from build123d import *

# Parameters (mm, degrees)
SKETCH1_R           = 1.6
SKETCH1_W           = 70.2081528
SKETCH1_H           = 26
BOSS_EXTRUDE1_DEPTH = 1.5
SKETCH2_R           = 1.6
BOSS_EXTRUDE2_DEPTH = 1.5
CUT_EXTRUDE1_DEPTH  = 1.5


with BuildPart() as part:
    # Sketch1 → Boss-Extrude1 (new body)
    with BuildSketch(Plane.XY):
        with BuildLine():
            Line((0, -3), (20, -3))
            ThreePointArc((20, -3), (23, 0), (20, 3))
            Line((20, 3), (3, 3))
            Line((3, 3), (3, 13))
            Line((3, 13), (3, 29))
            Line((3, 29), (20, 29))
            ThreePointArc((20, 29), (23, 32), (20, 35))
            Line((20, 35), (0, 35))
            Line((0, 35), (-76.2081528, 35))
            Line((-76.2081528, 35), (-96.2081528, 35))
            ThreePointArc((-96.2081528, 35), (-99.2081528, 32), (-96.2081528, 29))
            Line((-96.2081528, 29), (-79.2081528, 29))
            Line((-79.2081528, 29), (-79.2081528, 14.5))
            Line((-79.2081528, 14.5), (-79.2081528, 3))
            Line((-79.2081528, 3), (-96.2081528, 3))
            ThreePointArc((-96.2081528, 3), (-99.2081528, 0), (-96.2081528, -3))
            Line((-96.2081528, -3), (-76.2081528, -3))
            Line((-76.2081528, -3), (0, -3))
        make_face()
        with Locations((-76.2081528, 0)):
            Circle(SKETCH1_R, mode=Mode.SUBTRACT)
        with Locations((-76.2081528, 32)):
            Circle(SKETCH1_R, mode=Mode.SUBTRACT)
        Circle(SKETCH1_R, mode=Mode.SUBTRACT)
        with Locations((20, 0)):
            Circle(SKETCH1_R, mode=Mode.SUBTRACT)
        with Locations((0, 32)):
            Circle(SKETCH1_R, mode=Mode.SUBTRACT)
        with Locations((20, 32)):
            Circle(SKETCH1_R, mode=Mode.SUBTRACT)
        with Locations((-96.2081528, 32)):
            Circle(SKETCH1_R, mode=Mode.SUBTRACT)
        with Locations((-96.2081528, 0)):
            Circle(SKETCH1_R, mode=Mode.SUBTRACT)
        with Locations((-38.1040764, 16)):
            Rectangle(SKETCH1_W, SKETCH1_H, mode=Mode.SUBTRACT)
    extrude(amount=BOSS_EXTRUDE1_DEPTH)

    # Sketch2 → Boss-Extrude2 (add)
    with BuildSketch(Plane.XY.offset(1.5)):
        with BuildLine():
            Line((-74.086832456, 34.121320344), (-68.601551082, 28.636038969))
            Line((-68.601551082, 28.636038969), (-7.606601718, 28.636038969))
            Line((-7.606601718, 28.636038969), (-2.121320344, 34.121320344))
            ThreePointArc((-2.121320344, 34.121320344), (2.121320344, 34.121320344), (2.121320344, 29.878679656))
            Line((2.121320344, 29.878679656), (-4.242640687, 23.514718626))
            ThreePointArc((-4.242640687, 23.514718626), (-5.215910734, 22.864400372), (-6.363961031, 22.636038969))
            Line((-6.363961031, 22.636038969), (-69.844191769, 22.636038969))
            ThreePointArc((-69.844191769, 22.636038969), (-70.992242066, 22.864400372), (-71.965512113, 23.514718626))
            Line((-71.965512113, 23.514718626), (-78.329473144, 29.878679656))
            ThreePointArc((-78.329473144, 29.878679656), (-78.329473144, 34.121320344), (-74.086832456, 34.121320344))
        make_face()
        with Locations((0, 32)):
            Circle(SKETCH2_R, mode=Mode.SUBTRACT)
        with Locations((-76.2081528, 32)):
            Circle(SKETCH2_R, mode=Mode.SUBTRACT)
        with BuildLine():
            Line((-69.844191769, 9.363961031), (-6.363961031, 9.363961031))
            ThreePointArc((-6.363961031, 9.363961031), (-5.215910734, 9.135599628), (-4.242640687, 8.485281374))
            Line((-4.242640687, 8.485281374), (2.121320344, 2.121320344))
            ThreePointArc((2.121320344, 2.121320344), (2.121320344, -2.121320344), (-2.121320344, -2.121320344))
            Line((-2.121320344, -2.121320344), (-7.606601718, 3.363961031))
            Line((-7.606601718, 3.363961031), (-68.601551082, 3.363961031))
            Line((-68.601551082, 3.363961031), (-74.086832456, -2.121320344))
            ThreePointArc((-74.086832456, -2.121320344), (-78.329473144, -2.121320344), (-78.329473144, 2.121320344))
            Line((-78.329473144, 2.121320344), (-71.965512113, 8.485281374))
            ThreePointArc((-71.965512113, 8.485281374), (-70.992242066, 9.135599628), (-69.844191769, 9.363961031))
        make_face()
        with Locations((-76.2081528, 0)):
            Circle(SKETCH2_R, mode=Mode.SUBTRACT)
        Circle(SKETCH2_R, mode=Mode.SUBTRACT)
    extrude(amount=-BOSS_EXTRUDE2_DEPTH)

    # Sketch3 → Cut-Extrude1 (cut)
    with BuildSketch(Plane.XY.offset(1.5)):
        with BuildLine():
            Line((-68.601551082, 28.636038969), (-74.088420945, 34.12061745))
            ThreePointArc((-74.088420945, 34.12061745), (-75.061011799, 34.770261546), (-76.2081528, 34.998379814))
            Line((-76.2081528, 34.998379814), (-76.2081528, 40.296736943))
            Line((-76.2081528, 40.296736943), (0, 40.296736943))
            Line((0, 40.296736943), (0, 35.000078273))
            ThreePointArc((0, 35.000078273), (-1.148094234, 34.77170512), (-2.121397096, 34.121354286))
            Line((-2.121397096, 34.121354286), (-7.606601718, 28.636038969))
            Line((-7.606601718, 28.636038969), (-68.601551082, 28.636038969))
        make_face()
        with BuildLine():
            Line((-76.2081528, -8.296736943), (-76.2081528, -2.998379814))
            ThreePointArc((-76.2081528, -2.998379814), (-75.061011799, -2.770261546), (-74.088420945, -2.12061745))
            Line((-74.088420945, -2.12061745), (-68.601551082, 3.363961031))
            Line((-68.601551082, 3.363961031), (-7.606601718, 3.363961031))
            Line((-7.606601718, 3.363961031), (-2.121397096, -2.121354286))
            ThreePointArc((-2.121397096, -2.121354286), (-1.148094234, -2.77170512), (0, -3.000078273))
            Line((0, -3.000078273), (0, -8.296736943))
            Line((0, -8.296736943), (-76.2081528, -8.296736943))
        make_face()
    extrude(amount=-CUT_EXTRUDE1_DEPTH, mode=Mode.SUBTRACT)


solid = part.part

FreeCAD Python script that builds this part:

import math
import FreeCAD as App
import Part
import Sketcher

V = App.Vector
Q = App.Units.Quantity


def add_polygon(sketch, points):
    """Adds a closed chain of lines whose ends are joined by coincident constraints."""
    first, n = sketch.GeometryCount, len(points)
    for a, b in zip(points, points[1:] + points[:1]):
        sketch.addGeometry(Part.LineSegment(App.Vector(*a, 0), App.Vector(*b, 0)), False)
    for i in range(n):
        sketch.addConstraint(Sketcher.Constraint("Coincident", first + i, 2, first + (i + 1) % n, 1))

doc = App.newDocument("Part")
body = doc.addObject("PartDesign::Body", "Body")

sketch1 = doc.addObject("Sketcher::SketchObject", "Sketch")
body.addObject(sketch1)
sketch1.AttachmentSupport = (doc.XY_Plane, [""])
sketch1.MapMode = "FlatFace"
sketch1.addGeometry(Part.ArcOfCircle(Part.Circle(V(20, 0, 0), V(0, 0, 1), 3), math.radians(-90), math.radians(90)), False)
sketch1.addGeometry(Part.LineSegment(V(20, 3, 0), V(3, 3, 0)), False)
sketch1.addGeometry(Part.LineSegment(V(3, 3, 0), V(3, 29, 0)), False)
sketch1.addGeometry(Part.LineSegment(V(3, 29, 0), V(20, 29, 0)), False)
sketch1.addGeometry(Part.ArcOfCircle(Part.Circle(V(20, 32, 0), V(0, 0, 1), 3), math.radians(-90), math.radians(90)), False)
sketch1.addGeometry(Part.LineSegment(V(20, 35, 0), V(-96.2, 35, 0)), False)
sketch1.addGeometry(Part.ArcOfCircle(Part.Circle(V(-96.2, 32, 0), V(0, 0, 1), 3), math.radians(90), math.radians(270)), False)
sketch1.addGeometry(Part.LineSegment(V(-96.2, 29, 0), V(-79.2, 29, 0)), False)
sketch1.addGeometry(Part.LineSegment(V(-79.2, 29, 0), V(-79.2, 3, 0)), False)
sketch1.addGeometry(Part.LineSegment(V(-79.2, 3, 0), V(-96.2, 3, 0)), False)
sketch1.addGeometry(Part.ArcOfCircle(Part.Circle(V(-96.2, 0, 0), V(0, 0, 1), 3), math.radians(90), math.radians(270)), False)
sketch1.addGeometry(Part.LineSegment(V(-96.2, -3, 0), V(20, -3, 0)), False)
sketch1.addGeometry(Part.Circle(V(-96.2, 0, 0), V(0, 0, 1), 1.6), False)
sketch1.addGeometry(Part.Circle(V(-76.2, 0, 0), V(0, 0, 1), 1.6), False)
sketch1.addGeometry(Part.Circle(V(0, 0, 0), V(0, 0, 1), 1.6), False)
sketch1.addGeometry(Part.Circle(V(20, 0, 0), V(0, 0, 1), 1.6), False)
sketch1.addGeometry(Part.Circle(V(-96.2, 32, 0), V(0, 0, 1), 1.6), False)
sketch1.addGeometry(Part.Circle(V(-76.2, 32, 0), V(0, 0, 1), 1.6), False)
add_polygon(sketch1, [(-3, 3), (-73.2, 3), (-73.2, 29), (-3, 29)])
sketch1.addGeometry(Part.Circle(V(0, 32, 0), V(0, 0, 1), 1.6), False)
sketch1.addGeometry(Part.Circle(V(20, 32, 0), V(0, 0, 1), 1.6), False)
sketch1.addConstraint([
    Sketcher.Constraint("Tangent", 0, 2, 1, 1),
    Sketcher.Constraint("Coincident", 1, 2, 2, 1),
    Sketcher.Constraint("Coincident", 2, 2, 3, 1),
    Sketcher.Constraint("Tangent", 3, 2, 4, 1),
    Sketcher.Constraint("Tangent", 4, 2, 5, 1),
    Sketcher.Constraint("Tangent", 5, 2, 6, 1),
    Sketcher.Constraint("Tangent", 6, 2, 7, 1),
    Sketcher.Constraint("Coincident", 7, 2, 8, 1),
    Sketcher.Constraint("Coincident", 8, 2, 9, 1),
    Sketcher.Constraint("Tangent", 9, 2, 10, 1),
    Sketcher.Constraint("Tangent", 10, 2, 11, 1),
    Sketcher.Constraint("Tangent", 11, 2, 0, 1),
    Sketcher.Constraint("Horizontal", 1),
    Sketcher.Constraint("Vertical", 2),
    Sketcher.Constraint("Horizontal", 3),
    Sketcher.Constraint("Horizontal", 5),
    Sketcher.Constraint("Horizontal", 7),
    Sketcher.Constraint("Vertical", 8),
    Sketcher.Constraint("Horizontal", 9),
    Sketcher.Constraint("Horizontal", 11),
    Sketcher.Constraint("Horizontal", 18),
    Sketcher.Constraint("Vertical", 19),
    Sketcher.Constraint("Horizontal", 20),
    Sketcher.Constraint("Vertical", 21),
    Sketcher.Constraint("Coincident", 14, 3, -1, 1),
    Sketcher.Constraint("Coincident", 12, 3, 10, 3),
    Sketcher.Constraint("Coincident", 15, 3, 0, 3),
    Sketcher.Constraint("Coincident", 16, 3, 6, 3),
    Sketcher.Constraint("Coincident", 23, 3, 4, 3),
    Sketcher.Constraint("Equal", 0, 4),
    Sketcher.Constraint("Equal", 4, 6),
    Sketcher.Constraint("Equal", 6, 10),
    Sketcher.Constraint("Equal", 12, 13),
    Sketcher.Constraint("Equal", 13, 14),
    Sketcher.Constraint("Equal", 14, 15),
    Sketcher.Constraint("Equal", 15, 16),
    Sketcher.Constraint("Equal", 16, 17),
    Sketcher.Constraint("Equal", 17, 22),
    Sketcher.Constraint("Equal", 22, 23),
    Sketcher.Constraint("Symmetric", 2, 2, 20, 2, -2),
    Sketcher.Constraint("PointOnObject", 0, 3, -1),
    Sketcher.Constraint("PointOnObject", 13, 3, -1),
    Sketcher.Constraint("PointOnObject", 22, 3, -2),
    Sketcher.Constraint("Horizontal", 16, 3, 17, 3),
    Sketcher.Constraint("Horizontal", 17, 3, 22, 3),
    Sketcher.Constraint("Horizontal", 9, 2, 18, 2),
    Sketcher.Constraint("Vertical", 0, 3, 4, 3),
    Sketcher.Constraint("Vertical", 6, 3, 10, 3),
    Sketcher.Constraint("Vertical", 13, 3, 17, 3),
    Sketcher.Constraint("Equal", 3, 7),
    Sketcher.Constraint("Radius", 0, Q("3 mm")),
    Sketcher.Constraint("Diameter", 12, Q("3.2 mm")),
    Sketcher.Constraint("DistanceX", 1, 2, 1, 1, Q("17 mm")),
    Sketcher.Constraint("DistanceY", 2, 1, 2, 2, Q("26 mm")),
    Sketcher.Constraint("DistanceX", -1, 1, 0, 3, Q("20 mm")),
    Sketcher.Constraint("DistanceX", 10, 3, 13, 3, Q("20 mm")),
    Sketcher.Constraint("DistanceX", 13, 3, 18, 2, Q("3 mm")),
    Sketcher.Constraint("DistanceX", 5, 2, 5, 1, Q("116.208153 mm")),
])
pad1 = doc.addObject("PartDesign::Pad", "Pad")
body.addObject(pad1)
pad1.Profile = sketch1
pad1.Length = 1.5

sketch2 = doc.addObject("Sketcher::SketchObject", "Sketch001")
body.addObject(sketch2)
sketch2.AttachmentSupport = (doc.XY_Plane, [""])
sketch2.MapMode = "FlatFace"
sketch2.AttachmentOffset = App.Placement(V(0, 0, 1.5), App.Rotation())
sketch2.addGeometry([
    Part.LineSegment(V(-68.6, 28.6, 0), V(-74.1, 34.1, 0)),
    Part.ArcOfCircle(Part.Circle(V(-76.2, 32, 0), V(0, 0, 1), 3), math.radians(45), math.radians(225)),
    Part.LineSegment(V(-78.3, 29.9, 0), V(-72, 23.5, 0)),
    Part.ArcOfCircle(Part.Circle(V(-69.8, 25.6, 0), V(0, 0, 1), 3), math.radians(-135), math.radians(-90)),
    Part.LineSegment(V(-69.8, 22.6, 0), V(-6.4, 22.6, 0)),
    Part.ArcOfCircle(Part.Circle(V(-6.4, 25.6, 0), V(0, 0, 1), 3), math.radians(-90), math.radians(-45)),
    Part.LineSegment(V(-4.2, 23.5, 0), V(2.1, 29.9, 0)),
    Part.ArcOfCircle(Part.Circle(V(0, 32, 0), V(0, 0, 1), 3), math.radians(-45), math.radians(135)),
    Part.LineSegment(V(-2.1, 34.1, 0), V(-7.6, 28.6, 0)),
    Part.LineSegment(V(-7.6, 28.6, 0), V(-68.6, 28.6, 0)),
    Part.Circle(V(0, 32, 0), V(0, 0, 1), 1.6),
    Part.Circle(V(-76.2, 32, 0), V(0, 0, 1), 1.6),
    Part.LineSegment(V(-6.4, 9.4, 0), V(-69.8, 9.4, 0)),
    Part.ArcOfCircle(Part.Circle(V(-69.8, 6.4, 0), V(0, 0, 1), 3), math.radians(90), math.radians(135)),
    Part.LineSegment(V(-72, 8.5, 0), V(-78.3, 2.1, 0)),
    Part.ArcOfCircle(Part.Circle(V(-76.2, 0, 0), V(0, 0, 1), 3), math.radians(135), math.radians(315)),
    Part.LineSegment(V(-74.1, -2.1, 0), V(-68.6, 3.4, 0)),
    Part.LineSegment(V(-68.6, 3.4, 0), V(-7.6, 3.4, 0)),
    Part.LineSegment(V(-7.6, 3.4, 0), V(-2.1, -2.1, 0)),
    Part.ArcOfCircle(Part.Circle(V(0, 0, 0), V(0, 0, 1), 3), math.radians(-135), math.radians(45)),
    Part.LineSegment(V(2.1, 2.1, 0), V(-4.2, 8.5, 0)),
    Part.ArcOfCircle(Part.Circle(V(-6.4, 6.4, 0), V(0, 0, 1), 3), math.radians(45), math.radians(90)),
    Part.Circle(V(0, 0, 0), V(0, 0, 1), 1.6),
    Part.Circle(V(-76.2, 0, 0), V(0, 0, 1), 1.6),
], False)
sketch2.addConstraint([
    Sketcher.Constraint("Tangent", 0, 2, 1, 1),
    Sketcher.Constraint("Tangent", 1, 2, 2, 1),
    Sketcher.Constraint("Tangent", 2, 2, 3, 1),
    Sketcher.Constraint("Tangent", 3, 2, 4, 1),
    Sketcher.Constraint("Tangent", 4, 2, 5, 1),
    Sketcher.Constraint("Tangent", 5, 2, 6, 1),
    Sketcher.Constraint("Tangent", 6, 2, 7, 1),
    Sketcher.Constraint("Tangent", 7, 2, 8, 1),
    Sketcher.Constraint("Coincident", 8, 2, 9, 1),
    Sketcher.Constraint("Coincident", 9, 2, 0, 1),
    Sketcher.Constraint("Tangent", 12, 2, 13, 1),
    Sketcher.Constraint("Tangent", 13, 2, 14, 1),
    Sketcher.Constraint("Tangent", 14, 2, 15, 1),
    Sketcher.Constraint("Tangent", 15, 2, 16, 1),
    Sketcher.Constraint("Coincident", 16, 2, 17, 1),
    Sketcher.Constraint("Coincident", 17, 2, 18, 1),
    Sketcher.Constraint("Tangent", 18, 2, 19, 1),
    Sketcher.Constraint("Tangent", 19, 2, 20, 1),
    Sketcher.Constraint("Tangent", 20, 2, 21, 1),
    Sketcher.Constraint("Tangent", 21, 2, 12, 1),
    Sketcher.Constraint("Horizontal", 4),
    Sketcher.Constraint("Horizontal", 9),
    Sketcher.Constraint("Horizontal", 12),
    Sketcher.Constraint("Horizontal", 17),
    Sketcher.Constraint("Coincident", 19, 3, -1, 1),
    Sketcher.Constraint("Coincident", 22, 3, -1, 1),
    Sketcher.Constraint("Coincident", 10, 3, 7, 3),
    Sketcher.Constraint("Coincident", 11, 3, 1, 3),
    Sketcher.Constraint("Coincident", 23, 3, 15, 3),
    Sketcher.Constraint("Equal", 1, 3),
    Sketcher.Constraint("Equal", 3, 5),
    Sketcher.Constraint("Equal", 5, 7),
    Sketcher.Constraint("Equal", 10, 11),
    Sketcher.Constraint("Equal", 7, 13),
    Sketcher.Constraint("Equal", 13, 15),
    Sketcher.Constraint("Equal", 15, 19),
    Sketcher.Constraint("Equal", 19, 21),
    Sketcher.Constraint("Equal", 11, 22),
    Sketcher.Constraint("Equal", 22, 23),
    Sketcher.Constraint("PointOnObject", 7, 3, -2),
    Sketcher.Constraint("PointOnObject", 15, 3, -1),
    Sketcher.Constraint("Parallel", 0, 2),
    Sketcher.Constraint("Perpendicular", 2, 6),
    Sketcher.Constraint("Parallel", 6, 8),
    Sketcher.Constraint("Parallel", 8, 14),
    Sketcher.Constraint("Parallel", 14, 16),
    Sketcher.Constraint("Perpendicular", 16, 18),
    Sketcher.Constraint("Parallel", 18, 20),
    Sketcher.Constraint("Horizontal", 1, 3, 7, 3),
    Sketcher.Constraint("Horizontal", 2, 2, 5, 2),
    Sketcher.Constraint("Vertical", 3, 3, 13, 3),
    Sketcher.Constraint("Vertical", 11, 3, 15, 3),
    Sketcher.Constraint("Vertical", 9, 2, 16, 2),
    Sketcher.Constraint("Radius", 1, Q("3 mm")),
    Sketcher.Constraint("Diameter", 10, Q("3.2 mm")),
    Sketcher.Constraint("Distance", 2, Q("9 mm")),
    Sketcher.Constraint("DistanceY", -1, 1, 1, 3, Q("32 mm")),
    Sketcher.Constraint("DistanceY", 5, 3, 8, 2, Q("3 mm")),
    Sketcher.Constraint("DistanceX", 4, 1, 4, 2, Q("63.480231 mm")),
])
pad2 = doc.addObject("PartDesign::Pad", "Pad001")
body.addObject(pad2)
pad2.Profile = sketch2
pad2.Length = 1.5
pad2.Reversed = True

sketch3 = doc.addObject("Sketcher::SketchObject", "Sketch002")
body.addObject(sketch3)
sketch3.AttachmentSupport = (doc.XY_Plane, [""])
sketch3.MapMode = "FlatFace"
sketch3.AttachmentOffset = App.Placement(V(0, 0, 1.5), App.Rotation())
sketch3.addGeometry([
    Part.LineSegment(V(-74.1, 34.1, 0), V(-68.6, 28.6, 0)),
    Part.LineSegment(V(-68.6, 28.6, 0), V(-7.6, 28.6, 0)),
    Part.LineSegment(V(-7.6, 28.6, 0), V(-2.1, 34.1, 0)),
    Part.ArcOfCircle(Part.Circle(V(0, 32, 0), V(0, 0, 1), 3), math.radians(90), math.radians(135)),
    Part.LineSegment(V(0, 35, 0), V(0, 40.3, 0)),
    Part.LineSegment(V(0, 40.3, 0), V(-76.2, 40.3, 0)),
    Part.LineSegment(V(-76.2, 40.3, 0), V(-76.2, 35, 0)),
    Part.ArcOfCircle(Part.Circle(V(-76.2, 32, 0), V(0, 0, 1), 3), math.radians(45), math.radians(90)),
    Part.LineSegment(V(-76.2, -3, 0), V(-76.2, -8.3, 0)),
    Part.LineSegment(V(-76.2, -8.3, 0), V(0, -8.3, 0)),
    Part.LineSegment(V(0, -8.3, 0), V(0, -3, 0)),
    Part.ArcOfCircle(Part.Circle(V(0, 0, 0), V(0, 0, 1), 3), math.radians(-135), math.radians(-90)),
    Part.LineSegment(V(-2.1, -2.1, 0), V(-7.6, 3.4, 0)),
    Part.LineSegment(V(-7.6, 3.4, 0), V(-68.6, 3.4, 0)),
    Part.LineSegment(V(-68.6, 3.4, 0), V(-74.1, -2.1, 0)),
    Part.ArcOfCircle(Part.Circle(V(-76.2, 0, 0), V(0, 0, 1), 3), math.radians(-90), math.radians(-45)),
], False)
sketch3.addConstraint([
    Sketcher.Constraint("Coincident", 0, 2, 1, 1),
    Sketcher.Constraint("Coincident", 1, 2, 2, 1),
    Sketcher.Constraint("Tangent", 2, 2, 3, 2),
    Sketcher.Constraint("Coincident", 3, 1, 4, 1),
    Sketcher.Constraint("Coincident", 4, 2, 5, 1),
    Sketcher.Constraint("Coincident", 5, 2, 6, 1),
    Sketcher.Constraint("Coincident", 6, 2, 7, 2),
    Sketcher.Constraint("Tangent", 7, 1, 0, 1),
    Sketcher.Constraint("Coincident", 8, 2, 9, 1),
    Sketcher.Constraint("Coincident", 9, 2, 10, 1),
    Sketcher.Constraint("Coincident", 10, 2, 11, 2),
    Sketcher.Constraint("Tangent", 11, 1, 12, 1),
    Sketcher.Constraint("Coincident", 12, 2, 13, 1),
    Sketcher.Constraint("Coincident", 13, 2, 14, 1),
    Sketcher.Constraint("Tangent", 14, 2, 15, 2),
    Sketcher.Constraint("Coincident", 15, 1, 8, 1),
    Sketcher.Constraint("Horizontal", 1),
    Sketcher.Constraint("Vertical", 4),
    Sketcher.Constraint("Horizontal", 5),
    Sketcher.Constraint("Vertical", 6),
    Sketcher.Constraint("Vertical", 8),
    Sketcher.Constraint("Horizontal", 9),
    Sketcher.Constraint("Vertical", 10),
    Sketcher.Constraint("Horizontal", 13),
    Sketcher.Constraint("Coincident", 11, 3, -1, 1),
    Sketcher.Constraint("Equal", 3, 11),
    Sketcher.Constraint("Equal", 7, 15),
    Sketcher.Constraint("PointOnObject", 3, 3, -2),
    Sketcher.Constraint("PointOnObject", 15, 3, -1),
    Sketcher.Constraint("PointOnObject", 3, 1, -2),
    Sketcher.Constraint("PointOnObject", 9, 2, -2),
    Sketcher.Constraint("Horizontal", 3, 3, 7, 3),
    Sketcher.Constraint("Vertical", 7, 3, 15, 3),
    Sketcher.Constraint("Vertical", 15, 3, 5, 2),
    Sketcher.Constraint("Vertical", 6, 2, 8, 2),
    Sketcher.Constraint("Vertical", 2, 2, 11, 1),
    Sketcher.Constraint("Vertical", 1, 2, 12, 2),
    Sketcher.Constraint("Vertical", 0, 2, 13, 2),
    Sketcher.Constraint("Equal", 6, 8),
    Sketcher.Constraint("DistanceY", -1, 1, 3, 3, Q("32 mm")),
    Sketcher.Constraint("Radius", 3, Q("3.000078 mm")),
    Sketcher.Constraint("Radius", 7, Q("2.99838 mm")),
    Sketcher.Constraint("DistanceX", 1, 1, 1, 2, Q("60.994949 mm")),
    Sketcher.Constraint("DistanceY", 4, 1, 4, 2, Q("5.296659 mm")),
    Sketcher.Constraint("DistanceX", 1, 2, -1, 1, Q("7.606602 mm")),
    Sketcher.Constraint("DistanceX", 7, 3, 0, 2, Q("7.606602 mm")),
    Sketcher.Constraint("Distance", 2, Q("7.757329 mm")),
])
pocket1 = doc.addObject("PartDesign::Pocket", "Pocket")
body.addObject(pocket1)
pocket1.Profile = sketch3
pocket1.Length = 1.5

doc.recompute()
